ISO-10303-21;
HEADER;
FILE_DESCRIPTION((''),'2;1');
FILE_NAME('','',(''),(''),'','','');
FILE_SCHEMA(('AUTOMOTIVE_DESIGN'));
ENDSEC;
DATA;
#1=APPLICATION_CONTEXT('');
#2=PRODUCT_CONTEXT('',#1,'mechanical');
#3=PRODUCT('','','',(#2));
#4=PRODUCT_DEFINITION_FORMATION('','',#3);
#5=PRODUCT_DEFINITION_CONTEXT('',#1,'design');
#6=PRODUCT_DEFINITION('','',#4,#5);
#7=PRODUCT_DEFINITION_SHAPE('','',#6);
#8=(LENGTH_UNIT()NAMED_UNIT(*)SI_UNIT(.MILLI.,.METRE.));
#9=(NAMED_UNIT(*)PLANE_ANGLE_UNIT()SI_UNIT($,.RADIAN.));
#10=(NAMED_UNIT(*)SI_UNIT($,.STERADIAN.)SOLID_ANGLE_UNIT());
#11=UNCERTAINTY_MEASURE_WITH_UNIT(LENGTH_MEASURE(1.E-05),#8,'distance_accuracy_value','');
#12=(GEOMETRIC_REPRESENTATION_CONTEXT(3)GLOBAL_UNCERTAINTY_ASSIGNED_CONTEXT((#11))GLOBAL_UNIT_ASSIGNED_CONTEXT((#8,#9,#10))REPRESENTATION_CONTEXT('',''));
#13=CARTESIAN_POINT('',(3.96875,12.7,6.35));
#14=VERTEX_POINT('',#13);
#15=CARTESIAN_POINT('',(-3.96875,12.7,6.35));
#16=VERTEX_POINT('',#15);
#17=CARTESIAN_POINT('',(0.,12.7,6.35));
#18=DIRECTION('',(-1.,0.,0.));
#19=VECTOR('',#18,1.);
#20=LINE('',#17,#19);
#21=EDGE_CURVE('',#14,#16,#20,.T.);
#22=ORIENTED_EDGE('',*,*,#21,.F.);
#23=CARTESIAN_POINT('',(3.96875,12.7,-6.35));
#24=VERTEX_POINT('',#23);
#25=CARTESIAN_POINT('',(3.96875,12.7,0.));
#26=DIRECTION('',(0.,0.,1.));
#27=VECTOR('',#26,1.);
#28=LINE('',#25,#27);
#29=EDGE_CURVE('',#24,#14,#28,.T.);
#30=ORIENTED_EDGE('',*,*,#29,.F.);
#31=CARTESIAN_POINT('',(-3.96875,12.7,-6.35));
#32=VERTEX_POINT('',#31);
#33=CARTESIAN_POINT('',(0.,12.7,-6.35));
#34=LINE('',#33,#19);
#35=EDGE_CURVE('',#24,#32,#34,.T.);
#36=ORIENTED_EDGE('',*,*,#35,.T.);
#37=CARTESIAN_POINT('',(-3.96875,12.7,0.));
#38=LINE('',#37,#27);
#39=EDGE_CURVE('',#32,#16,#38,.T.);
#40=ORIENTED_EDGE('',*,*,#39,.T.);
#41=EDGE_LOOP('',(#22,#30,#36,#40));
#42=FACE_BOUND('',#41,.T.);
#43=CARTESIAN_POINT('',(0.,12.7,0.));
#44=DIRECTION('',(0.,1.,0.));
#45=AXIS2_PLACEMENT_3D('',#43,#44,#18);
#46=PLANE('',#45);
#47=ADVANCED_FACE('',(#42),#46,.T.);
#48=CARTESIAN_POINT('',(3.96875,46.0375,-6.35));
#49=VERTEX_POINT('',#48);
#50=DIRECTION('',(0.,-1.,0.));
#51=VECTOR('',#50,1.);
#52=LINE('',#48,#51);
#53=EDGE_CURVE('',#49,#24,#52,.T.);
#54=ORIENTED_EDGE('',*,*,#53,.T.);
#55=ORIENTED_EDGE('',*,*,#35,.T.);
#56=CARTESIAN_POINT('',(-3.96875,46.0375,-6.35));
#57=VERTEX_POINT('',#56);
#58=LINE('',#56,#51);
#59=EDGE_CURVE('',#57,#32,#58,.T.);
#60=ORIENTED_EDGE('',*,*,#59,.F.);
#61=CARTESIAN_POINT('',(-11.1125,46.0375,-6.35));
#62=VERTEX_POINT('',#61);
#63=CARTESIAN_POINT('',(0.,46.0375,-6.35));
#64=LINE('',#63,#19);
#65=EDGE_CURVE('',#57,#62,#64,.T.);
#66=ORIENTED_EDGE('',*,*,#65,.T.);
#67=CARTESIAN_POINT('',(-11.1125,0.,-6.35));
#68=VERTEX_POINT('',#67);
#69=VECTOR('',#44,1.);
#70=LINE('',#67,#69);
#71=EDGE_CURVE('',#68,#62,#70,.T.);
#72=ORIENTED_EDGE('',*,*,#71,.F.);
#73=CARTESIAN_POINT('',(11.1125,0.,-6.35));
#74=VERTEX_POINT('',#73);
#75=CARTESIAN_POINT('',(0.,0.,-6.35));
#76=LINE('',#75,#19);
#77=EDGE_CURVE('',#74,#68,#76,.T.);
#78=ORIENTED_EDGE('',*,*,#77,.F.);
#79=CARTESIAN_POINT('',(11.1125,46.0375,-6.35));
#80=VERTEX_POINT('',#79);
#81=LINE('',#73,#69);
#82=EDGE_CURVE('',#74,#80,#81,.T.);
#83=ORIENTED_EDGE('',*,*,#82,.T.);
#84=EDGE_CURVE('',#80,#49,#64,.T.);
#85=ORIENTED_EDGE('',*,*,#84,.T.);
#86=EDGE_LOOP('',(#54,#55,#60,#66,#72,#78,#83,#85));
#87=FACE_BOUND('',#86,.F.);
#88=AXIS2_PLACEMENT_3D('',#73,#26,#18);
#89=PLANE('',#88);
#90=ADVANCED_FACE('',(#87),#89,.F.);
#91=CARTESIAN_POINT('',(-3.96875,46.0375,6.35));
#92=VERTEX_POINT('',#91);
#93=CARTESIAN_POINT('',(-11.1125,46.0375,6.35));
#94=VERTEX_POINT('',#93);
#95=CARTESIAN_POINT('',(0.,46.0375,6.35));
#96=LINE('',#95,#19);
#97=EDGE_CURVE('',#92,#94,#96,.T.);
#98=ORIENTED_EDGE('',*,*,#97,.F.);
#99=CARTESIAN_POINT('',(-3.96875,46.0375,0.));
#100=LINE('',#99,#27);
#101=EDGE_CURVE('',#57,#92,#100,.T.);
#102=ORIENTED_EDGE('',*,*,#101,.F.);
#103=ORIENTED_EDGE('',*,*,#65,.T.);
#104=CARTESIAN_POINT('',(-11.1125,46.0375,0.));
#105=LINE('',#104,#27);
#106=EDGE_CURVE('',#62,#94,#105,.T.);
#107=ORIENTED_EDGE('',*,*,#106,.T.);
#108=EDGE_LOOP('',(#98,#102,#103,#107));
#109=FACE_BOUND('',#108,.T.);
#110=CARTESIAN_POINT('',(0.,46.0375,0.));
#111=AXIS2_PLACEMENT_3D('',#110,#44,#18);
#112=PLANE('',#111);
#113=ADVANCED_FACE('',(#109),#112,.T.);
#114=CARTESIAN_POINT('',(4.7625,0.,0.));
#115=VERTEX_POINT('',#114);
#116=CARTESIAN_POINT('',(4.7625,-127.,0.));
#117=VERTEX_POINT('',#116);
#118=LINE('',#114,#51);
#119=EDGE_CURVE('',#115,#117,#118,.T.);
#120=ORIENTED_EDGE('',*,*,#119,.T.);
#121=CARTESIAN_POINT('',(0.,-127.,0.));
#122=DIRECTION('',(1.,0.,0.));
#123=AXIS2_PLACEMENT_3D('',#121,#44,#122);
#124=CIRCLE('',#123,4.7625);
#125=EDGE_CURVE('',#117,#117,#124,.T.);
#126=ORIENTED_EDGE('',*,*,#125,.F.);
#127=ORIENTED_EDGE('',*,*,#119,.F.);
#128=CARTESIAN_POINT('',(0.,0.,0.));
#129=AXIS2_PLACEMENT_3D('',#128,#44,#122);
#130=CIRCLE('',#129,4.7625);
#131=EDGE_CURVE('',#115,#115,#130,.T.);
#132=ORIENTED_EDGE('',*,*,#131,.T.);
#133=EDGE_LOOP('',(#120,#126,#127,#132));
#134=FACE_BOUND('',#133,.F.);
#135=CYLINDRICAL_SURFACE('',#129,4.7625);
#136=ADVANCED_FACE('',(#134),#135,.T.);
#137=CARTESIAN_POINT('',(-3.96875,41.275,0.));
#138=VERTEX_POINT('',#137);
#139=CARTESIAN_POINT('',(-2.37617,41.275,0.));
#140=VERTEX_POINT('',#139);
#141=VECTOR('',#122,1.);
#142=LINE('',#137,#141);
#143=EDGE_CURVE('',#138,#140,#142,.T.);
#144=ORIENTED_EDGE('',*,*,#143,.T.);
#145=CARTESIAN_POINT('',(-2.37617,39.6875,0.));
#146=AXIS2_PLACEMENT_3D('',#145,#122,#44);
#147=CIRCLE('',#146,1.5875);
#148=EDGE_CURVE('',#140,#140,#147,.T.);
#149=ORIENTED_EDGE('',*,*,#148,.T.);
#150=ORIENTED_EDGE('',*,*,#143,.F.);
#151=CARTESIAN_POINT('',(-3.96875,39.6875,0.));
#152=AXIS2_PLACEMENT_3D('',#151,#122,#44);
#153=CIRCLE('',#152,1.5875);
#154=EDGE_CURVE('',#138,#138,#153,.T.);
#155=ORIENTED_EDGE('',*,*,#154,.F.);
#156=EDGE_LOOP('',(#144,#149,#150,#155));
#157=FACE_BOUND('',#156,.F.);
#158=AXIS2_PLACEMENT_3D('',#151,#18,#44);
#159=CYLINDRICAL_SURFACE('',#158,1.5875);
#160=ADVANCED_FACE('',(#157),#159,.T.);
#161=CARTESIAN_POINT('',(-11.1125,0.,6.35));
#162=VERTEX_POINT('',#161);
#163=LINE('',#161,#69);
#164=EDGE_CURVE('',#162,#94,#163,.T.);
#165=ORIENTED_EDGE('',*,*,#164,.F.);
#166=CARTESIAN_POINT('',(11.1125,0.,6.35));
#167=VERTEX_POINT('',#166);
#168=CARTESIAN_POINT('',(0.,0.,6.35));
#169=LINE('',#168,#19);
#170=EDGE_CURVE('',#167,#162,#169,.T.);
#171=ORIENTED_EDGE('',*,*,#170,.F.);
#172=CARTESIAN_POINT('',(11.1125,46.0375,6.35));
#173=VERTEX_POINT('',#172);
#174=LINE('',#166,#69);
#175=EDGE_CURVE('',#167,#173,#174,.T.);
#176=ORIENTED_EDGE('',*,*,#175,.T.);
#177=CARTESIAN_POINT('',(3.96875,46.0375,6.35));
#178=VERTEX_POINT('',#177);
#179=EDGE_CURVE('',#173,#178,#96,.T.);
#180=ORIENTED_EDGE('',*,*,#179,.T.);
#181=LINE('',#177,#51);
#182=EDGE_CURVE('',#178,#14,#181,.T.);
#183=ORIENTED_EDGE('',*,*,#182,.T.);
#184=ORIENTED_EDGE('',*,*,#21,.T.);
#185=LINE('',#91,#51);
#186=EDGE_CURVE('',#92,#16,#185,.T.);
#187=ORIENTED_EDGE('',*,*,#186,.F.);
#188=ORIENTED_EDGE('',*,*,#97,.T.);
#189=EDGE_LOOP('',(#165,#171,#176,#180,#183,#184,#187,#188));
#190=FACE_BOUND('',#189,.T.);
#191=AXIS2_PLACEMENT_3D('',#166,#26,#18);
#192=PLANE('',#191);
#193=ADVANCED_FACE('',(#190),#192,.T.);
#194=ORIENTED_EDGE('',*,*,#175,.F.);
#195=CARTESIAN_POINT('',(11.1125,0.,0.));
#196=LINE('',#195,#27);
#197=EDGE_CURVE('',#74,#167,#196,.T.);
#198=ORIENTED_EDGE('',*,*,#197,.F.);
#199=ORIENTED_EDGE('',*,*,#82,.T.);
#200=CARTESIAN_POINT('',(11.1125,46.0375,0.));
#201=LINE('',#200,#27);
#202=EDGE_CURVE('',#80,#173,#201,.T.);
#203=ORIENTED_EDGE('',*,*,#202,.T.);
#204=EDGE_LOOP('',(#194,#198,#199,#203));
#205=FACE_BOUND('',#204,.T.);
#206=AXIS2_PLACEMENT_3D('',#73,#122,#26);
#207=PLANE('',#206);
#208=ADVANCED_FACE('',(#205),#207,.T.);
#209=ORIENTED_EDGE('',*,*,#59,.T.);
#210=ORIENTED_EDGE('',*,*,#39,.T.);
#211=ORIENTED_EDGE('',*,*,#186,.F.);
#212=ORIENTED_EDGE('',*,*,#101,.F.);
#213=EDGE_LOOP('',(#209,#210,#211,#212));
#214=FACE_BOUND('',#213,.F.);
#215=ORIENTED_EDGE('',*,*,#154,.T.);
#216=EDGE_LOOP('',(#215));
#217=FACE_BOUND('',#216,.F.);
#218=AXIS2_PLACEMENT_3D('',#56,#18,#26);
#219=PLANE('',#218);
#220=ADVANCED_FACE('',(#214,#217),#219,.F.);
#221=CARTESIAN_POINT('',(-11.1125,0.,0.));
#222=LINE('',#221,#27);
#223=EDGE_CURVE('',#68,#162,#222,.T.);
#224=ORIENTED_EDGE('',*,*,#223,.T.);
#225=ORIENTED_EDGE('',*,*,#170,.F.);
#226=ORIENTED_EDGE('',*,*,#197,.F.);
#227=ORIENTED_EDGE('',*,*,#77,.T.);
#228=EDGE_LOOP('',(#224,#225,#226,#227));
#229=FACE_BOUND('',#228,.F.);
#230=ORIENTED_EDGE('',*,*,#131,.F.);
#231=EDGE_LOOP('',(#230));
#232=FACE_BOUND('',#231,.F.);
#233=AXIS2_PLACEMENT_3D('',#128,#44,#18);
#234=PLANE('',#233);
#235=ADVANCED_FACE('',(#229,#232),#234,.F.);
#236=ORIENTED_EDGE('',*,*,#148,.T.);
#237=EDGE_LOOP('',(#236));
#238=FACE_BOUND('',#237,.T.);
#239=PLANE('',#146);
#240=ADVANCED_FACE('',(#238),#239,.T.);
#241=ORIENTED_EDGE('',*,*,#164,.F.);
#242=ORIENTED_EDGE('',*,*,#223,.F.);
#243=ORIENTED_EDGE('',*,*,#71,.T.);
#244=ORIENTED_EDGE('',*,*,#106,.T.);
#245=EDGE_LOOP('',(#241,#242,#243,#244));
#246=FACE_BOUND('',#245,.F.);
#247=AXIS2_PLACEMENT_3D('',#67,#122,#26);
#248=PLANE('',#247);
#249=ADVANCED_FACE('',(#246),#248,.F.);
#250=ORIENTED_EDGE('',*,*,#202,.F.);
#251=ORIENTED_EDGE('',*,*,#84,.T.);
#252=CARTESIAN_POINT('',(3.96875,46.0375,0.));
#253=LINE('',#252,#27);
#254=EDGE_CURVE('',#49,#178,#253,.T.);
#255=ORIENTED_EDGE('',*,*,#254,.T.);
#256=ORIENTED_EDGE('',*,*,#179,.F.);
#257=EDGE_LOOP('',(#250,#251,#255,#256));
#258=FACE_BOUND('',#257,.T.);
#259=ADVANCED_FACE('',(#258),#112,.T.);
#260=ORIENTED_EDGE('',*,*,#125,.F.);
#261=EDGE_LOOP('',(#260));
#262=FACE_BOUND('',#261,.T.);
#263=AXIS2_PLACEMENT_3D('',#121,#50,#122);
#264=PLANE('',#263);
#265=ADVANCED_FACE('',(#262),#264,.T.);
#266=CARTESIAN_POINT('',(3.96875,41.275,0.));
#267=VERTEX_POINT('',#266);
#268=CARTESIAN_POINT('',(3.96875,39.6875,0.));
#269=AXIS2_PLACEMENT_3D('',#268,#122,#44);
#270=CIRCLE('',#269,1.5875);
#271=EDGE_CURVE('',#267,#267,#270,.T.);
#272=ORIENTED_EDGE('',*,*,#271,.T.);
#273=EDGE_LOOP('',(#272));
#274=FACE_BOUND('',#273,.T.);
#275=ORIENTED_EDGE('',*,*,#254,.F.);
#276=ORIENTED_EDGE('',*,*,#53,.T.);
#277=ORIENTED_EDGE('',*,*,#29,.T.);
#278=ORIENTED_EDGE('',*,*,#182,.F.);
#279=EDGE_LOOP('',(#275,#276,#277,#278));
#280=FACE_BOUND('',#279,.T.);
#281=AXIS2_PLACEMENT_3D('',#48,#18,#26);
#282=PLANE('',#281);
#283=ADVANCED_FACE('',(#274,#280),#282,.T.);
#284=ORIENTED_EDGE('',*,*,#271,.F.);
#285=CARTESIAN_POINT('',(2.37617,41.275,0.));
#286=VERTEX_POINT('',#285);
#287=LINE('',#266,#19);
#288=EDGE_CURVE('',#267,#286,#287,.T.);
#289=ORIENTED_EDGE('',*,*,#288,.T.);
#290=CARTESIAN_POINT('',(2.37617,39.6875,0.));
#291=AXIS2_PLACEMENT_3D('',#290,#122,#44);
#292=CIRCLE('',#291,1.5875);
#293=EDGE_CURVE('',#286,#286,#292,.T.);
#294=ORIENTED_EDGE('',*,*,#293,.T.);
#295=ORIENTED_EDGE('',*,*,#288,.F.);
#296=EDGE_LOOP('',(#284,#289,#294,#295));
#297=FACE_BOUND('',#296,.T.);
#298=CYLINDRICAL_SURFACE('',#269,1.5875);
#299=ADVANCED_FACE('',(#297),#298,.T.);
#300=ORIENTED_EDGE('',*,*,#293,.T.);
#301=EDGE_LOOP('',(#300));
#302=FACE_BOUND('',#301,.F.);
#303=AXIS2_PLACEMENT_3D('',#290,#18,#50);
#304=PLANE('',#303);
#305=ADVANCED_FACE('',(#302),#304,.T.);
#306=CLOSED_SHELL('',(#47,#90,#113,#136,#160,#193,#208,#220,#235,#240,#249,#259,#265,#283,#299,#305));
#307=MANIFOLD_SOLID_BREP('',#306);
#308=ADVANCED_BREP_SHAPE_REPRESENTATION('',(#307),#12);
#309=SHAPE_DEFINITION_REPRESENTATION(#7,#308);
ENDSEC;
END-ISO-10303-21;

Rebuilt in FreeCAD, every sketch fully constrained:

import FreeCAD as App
import Part
import Sketcher

V = App.Vector
Q = App.Units.Quantity

doc = App.newDocument("Part")
body = doc.addObject("PartDesign::Body", "Body")

sketch1 = doc.addObject("Sketcher::SketchObject", "Sketch")
body.addObject(sketch1)
sketch1.AttachmentSupport = (doc.XZ_Plane, [""])
sketch1.MapMode = "FlatFace"
sketch1.addGeometry(Part.Circle(V(0, 0, 0), V(0, 0, 1), 4.8), False)
sketch1.addConstraint(Sketcher.Constraint("Coincident", 0, 3, -1, 1))
sketch1.addConstraint(Sketcher.Constraint("Diameter", 0, Q("0.375 in")))
pad1 = doc.addObject("PartDesign::Pad", "Pad")
body.addObject(pad1)
pad1.Profile = sketch1
pad1.Length = Q("5 in")

sketch2 = doc.addObject("Sketcher::SketchObject", "Sketch001")
body.addObject(sketch2)
sketch2.AttachmentSupport = (doc.XZ_Plane, [""])
sketch2.MapMode = "FlatFace"
sketch2.addGeometry(Part.LineSegment(V(11, 6, 0), V(11, -6, 0)), False)
sketch2.addGeometry(Part.LineSegment(V(11, -6, 0), V(-11, -6, 0)), False)
sketch2.addGeometry(Part.LineSegment(V(-11, -6, 0), V(-11, 6, 0)), False)
sketch2.addGeometry(Part.LineSegment(V(-11, 6, 0), V(11, 6, 0)), False)
sketch2.addConstraint(Sketcher.Constraint("Coincident", 0, 2, 1, 1))
sketch2.addConstraint(Sketcher.Constraint("Coincident", 1, 2, 2, 1))
sketch2.addConstraint(Sketcher.Constraint("Coincident", 2, 2, 3, 1))
sketch2.addConstraint(Sketcher.Constraint("Coincident", 3, 2, 0, 1))
sketch2.addConstraint(Sketcher.Constraint("Vertical", 0))
sketch2.addConstraint(Sketcher.Constraint("Horizontal", 1))
sketch2.addConstraint(Sketcher.Constraint("Vertical", 2))
sketch2.addConstraint(Sketcher.Constraint("Horizontal", 3))
sketch2.addConstraint(Sketcher.Constraint("Symmetric", 0, 2, 2, 2, -1, 1))
sketch2.addConstraint(Sketcher.Constraint("DistanceY", 0, 2, 0, 1, Q("0.5 in")))
sketch2.addConstraint(Sketcher.Constraint("DistanceX", 1, 2, 1, 1, Q("0.875 in")))
pad2 = doc.addObject("PartDesign::Pad", "Pad001")
body.addObject(pad2)
pad2.Profile = sketch2
pad2.Length = Q("1.8125 in")
pad2.Reversed = True

sketch3 = doc.addObject("Sketcher::SketchObject", "Sketch002")
body.addObject(sketch3)
sketch3.AttachmentSupport = (doc.XZ_Plane, [""])
sketch3.MapMode = "FlatFace"
sketch3.AttachmentOffset = App.Placement(V(0, 0, -1.8125 * 25.4), App.Rotation())
sketch3.addGeometry(Part.LineSegment(V(4, 6, 0), V(4, -6, 0)), False)
sketch3.addGeometry(Part.LineSegment(V(4, -6, 0), V(-4, -6, 0)), False)
sketch3.addGeometry(Part.LineSegment(V(-4, -6, 0), V(-4, 6, 0)), False)
sketch3.addGeometry(Part.LineSegment(V(-4, 6, 0), V(4, 6, 0)), False)
sketch3.addConstraint(Sketcher.Constraint("Coincident", 0, 2, 1, 1))
sketch3.addConstraint(Sketcher.Constraint("Coincident", 1, 2, 2, 1))
sketch3.addConstraint(Sketcher.Constraint("Coincident", 2, 2, 3, 1))
sketch3.addConstraint(Sketcher.Constraint("Coincident", 3, 2, 0, 1))
sketch3.addConstraint(Sketcher.Constraint("Vertical", 0))
sketch3.addConstraint(Sketcher.Constraint("Horizontal", 1))
sketch3.addConstraint(Sketcher.Constraint("Vertical", 2))
sketch3.addConstraint(Sketcher.Constraint("Horizontal", 3))
sketch3.addConstraint(Sketcher.Constraint("Symmetric", 0, 2, 2, 2, -1, 1))
sketch3.addConstraint(Sketcher.Constraint("DistanceY", 0, 2, 0, 1, Q("0.5 in")))
sketch3.addConstraint(Sketcher.Constraint("DistanceX", 1, 2, 1, 1, Q("0.3125 in")))
pocket1 = doc.addObject("PartDesign::Pocket", "Pocket")
body.addObject(pocket1)
pocket1.Profile = sketch3
pocket1.Length = Q("1.3125 in")
pocket1.Reversed = True

sketch4 = doc.addObject("Sketcher::SketchObject", "Sketch003")
body.addObject(sketch4)
sketch4.AttachmentSupport = (doc.YZ_Plane, [""])
sketch4.MapMode = "FlatFace"
sketch4.AttachmentOffset = App.Placement(V(0, 0, -0.15625 * 25.4), App.Rotation())
sketch4.addGeometry(Part.Circle(V(39.7, 0, 0), V(0, 0, 1), 1.6), False)
sketch4.addConstraint(Sketcher.Constraint("PointOnObject", 0, 3, -1))
sketch4.addConstraint(Sketcher.Constraint("Diameter", 0, Q("0.125 in")))
sketch4.addConstraint(Sketcher.Constraint("DistanceX", -1, 1, 0, 3, Q("1.5625 in")))
pad3 = doc.addObject("PartDesign::Pad", "Pad002")
body.addObject(pad3)
pad3.Profile = sketch4
pad3.Length = Q("0.0627 in")
body2 = doc.addObject("PartDesign::Body", "Body001")
doc.recompute()

body2.BaseFeature = body
doc.recompute()

mirroring = doc.addObject("Part::Mirroring", "Mirroring")
mirroring.Source = body
mirroring.Base = V(0, 0, 0)
mirroring.Normal = V(1, 0, 0)
body3 = doc.addObject("PartDesign::Body", "Body002")
body3.BaseFeature = mirroring
boolean = doc.addObject("PartDesign::Boolean", "Boolean")
body2.addObject(boolean)
boolean.Type = "Fuse"
boolean.addObjects([body3])
doc.recompute()
mirroring.Visibility = False

doc.recompute()
